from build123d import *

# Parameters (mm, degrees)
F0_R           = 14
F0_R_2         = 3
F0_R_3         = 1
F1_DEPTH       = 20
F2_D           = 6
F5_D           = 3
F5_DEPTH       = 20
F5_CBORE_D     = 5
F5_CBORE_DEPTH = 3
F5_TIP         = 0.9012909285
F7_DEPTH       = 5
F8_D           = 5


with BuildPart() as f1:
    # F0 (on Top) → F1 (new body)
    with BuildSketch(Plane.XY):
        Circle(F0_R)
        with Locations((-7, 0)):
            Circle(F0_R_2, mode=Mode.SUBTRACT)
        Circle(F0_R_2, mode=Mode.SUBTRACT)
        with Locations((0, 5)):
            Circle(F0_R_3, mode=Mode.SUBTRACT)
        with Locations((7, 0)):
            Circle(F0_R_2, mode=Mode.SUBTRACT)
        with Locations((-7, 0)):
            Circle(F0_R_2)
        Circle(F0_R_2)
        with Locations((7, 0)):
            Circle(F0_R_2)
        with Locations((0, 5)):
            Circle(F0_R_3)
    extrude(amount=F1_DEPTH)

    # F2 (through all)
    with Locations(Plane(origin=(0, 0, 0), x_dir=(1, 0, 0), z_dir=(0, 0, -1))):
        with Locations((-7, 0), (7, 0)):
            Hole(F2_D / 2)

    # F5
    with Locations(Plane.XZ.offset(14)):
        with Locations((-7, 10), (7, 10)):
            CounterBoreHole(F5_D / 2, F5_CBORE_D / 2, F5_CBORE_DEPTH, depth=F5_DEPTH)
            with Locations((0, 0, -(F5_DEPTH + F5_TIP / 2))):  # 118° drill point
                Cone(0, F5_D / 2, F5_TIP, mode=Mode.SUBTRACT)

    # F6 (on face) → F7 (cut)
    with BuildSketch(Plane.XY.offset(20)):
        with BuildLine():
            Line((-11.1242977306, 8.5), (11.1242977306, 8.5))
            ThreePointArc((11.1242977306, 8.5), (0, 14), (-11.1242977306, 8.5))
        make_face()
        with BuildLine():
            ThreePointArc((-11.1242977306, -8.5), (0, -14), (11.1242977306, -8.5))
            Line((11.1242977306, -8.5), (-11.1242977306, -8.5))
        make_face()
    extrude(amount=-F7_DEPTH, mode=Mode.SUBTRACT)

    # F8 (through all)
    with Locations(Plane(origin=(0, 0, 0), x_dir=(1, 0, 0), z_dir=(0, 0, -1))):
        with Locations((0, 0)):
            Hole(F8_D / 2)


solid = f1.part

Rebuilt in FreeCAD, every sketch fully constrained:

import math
import FreeCAD as App
import Part
import Sketcher

V = App.Vector
Q = App.Units.Quantity

doc = App.newDocument("Part")
body = doc.addObject("PartDesign::Body", "Body")

# Sketch on XY plane
sketch1 = doc.addObject("Sketcher::SketchObject", "Sketch")
body.addObject(sketch1)
sketch1.AttachmentSupport = (doc.XY_Plane, [""])
sketch1.MapMode = "FlatFace"
sketch1.addGeometry(Part.Circle(V(0, 0, 0), V(0, 0, 1), 14), False)
sketch1.addConstraint([
    Sketcher.Constraint("Coincident", 0, 3, -1, 1),
    Sketcher.Constraint("Diameter", 0, Q("28 mm")),
])
pad1 = doc.addObject("PartDesign::Pad", "Pad")
body.addObject(pad1)
pad1.Profile = sketch1
pad1.Length = 20

# Sketch on XY plane
sketch2 = doc.addObject("Sketcher::SketchObject", "Sketch001")
body.addObject(sketch2)
sketch2.AttachmentSupport = (doc.XY_Plane, [""])
sketch2.MapMode = "FlatFace"
sketch2.addGeometry([
    Part.Circle(V(-7, 0, 0), V(0, 0, 1), 3),
    Part.Circle(V(7, 0, 0), V(0, 0, 1), 3),
], False)
sketch2.addConstraint([
    Sketcher.Constraint("Equal", 0, 1),
    Sketcher.Constraint("Symmetric", 0, 3, 1, 3, -1, 1),
    Sketcher.Constraint("PointOnObject", 0, 3, -1),
    Sketcher.Constraint("Diameter", 0, Q("6 mm")),
    Sketcher.Constraint("DistanceX", 0, 3, -1, 1, Q("7 mm")),
])
doc.recompute()
hole = doc.addObject("PartDesign::Hole", "Hole")
body.addObject(hole)
hole.Profile = sketch2
hole.ThreadType = "None"
hole.Diameter = 6
hole.DepthType = "ThroughAll"
hole.Reversed = True

# Sketch on XZ plane
sketch3 = doc.addObject("Sketcher::SketchObject", "Sketch002")
body.addObject(sketch3)
sketch3.AttachmentSupport = (doc.XZ_Plane, [""])
sketch3.MapMode = "FlatFace"
sketch3.AttachmentOffset = App.Placement(V(0, 0, 14), App.Rotation())
sketch3.addGeometry([
    Part.Circle(V(-7, 10, 0), V(0, 0, 1), 1.5),
    Part.Circle(V(7, 10, 0), V(0, 0, 1), 1.5),
], False)
sketch3.addConstraint([
    Sketcher.Constraint("Equal", 0, 1),
    Sketcher.Constraint("Symmetric", 0, 3, 1, 3, -2),
    Sketcher.Constraint("Diameter", 0, Q("3 mm")),
    Sketcher.Constraint("DistanceX", 0, 3, -1, 1, Q("7 mm")),
    Sketcher.Constraint("DistanceY", -1, 1, 0, 3, Q("10 mm")),
])
doc.recompute()
hole2 = doc.addObject("PartDesign::Hole", "Hole001")
body.addObject(hole2)
hole2.Profile = sketch3
hole2.ThreadType = "None"
hole2.Diameter = 3
hole2.DepthType = "Dimension"
hole2.Depth = 20
hole2.DrillPoint = "Angled"
hole2.DrillPointAngle = 118
hole2.HoleCutType = "Counterbore"
hole2.HoleCutDiameter = 5
hole2.HoleCutDepth = 3

# Sketch on XY plane
sketch4 = doc.addObject("Sketcher::SketchObject", "Sketch003")
body.addObject(sketch4)
sketch4.AttachmentSupport = (doc.XY_Plane, [""])
sketch4.MapMode = "FlatFace"
sketch4.AttachmentOffset = App.Placement(V(0, 0, 20), App.Rotation())
sketch4.addGeometry([
    Part.LineSegment(V(-11, 8, 0), V(11, 8, 0)),
    Part.ArcOfCircle(Part.Circle(V(0, 0, 0), V(0, 0, 1), 14), math.radians(37), math.radians(143)),
    Part.ArcOfCircle(Part.Circle(V(0, 0, 0), V(0, 0, 1), 14), math.radians(-143), math.radians(-37)),
    Part.LineSegment(V(11, -8, 0), V(-11, -8, 0)),
], False)
sketch4.addConstraint([
    Sketcher.Constraint("Coincident", 0, 1, 1, 2),
    Sketcher.Constraint("Coincident", 1, 1, 0, 2),
    Sketcher.Constraint("Coincident", 2, 1, 3, 2),
    Sketcher.Constraint("Coincident", 3, 1, 2, 2),
    Sketcher.Constraint("Horizontal", 0),
    Sketcher.Constraint("Horizontal", 3),
    Sketcher.Constraint("Coincident", 1, 3, -1, 1),
    Sketcher.Constraint("Coincident", 2, 3, -1, 1),
    Sketcher.Constraint("Equal", 1, 2),
    Sketcher.Constraint("Vertical", 0, 1, 2, 1),
    Sketcher.Constraint("Radius", 1, Q("14 mm")),
    Sketcher.Constraint("DistanceY", 2, 1, 0, 1, Q("17 mm")),
])
pocket1 = doc.addObject("PartDesign::Pocket", "Pocket")
body.addObject(pocket1)
pocket1.Profile = sketch4
pocket1.Length = 5

# Sketch on XY plane
sketch5 = doc.addObject("Sketcher::SketchObject", "Sketch004")
body.addObject(sketch5)
sketch5.AttachmentSupport = (doc.XY_Plane, [""])
sketch5.MapMode = "FlatFace"
sketch5.addGeometry(Part.Circle(V(0, 0, 0), V(0, 0, 1), 2.5), False)
sketch5.addConstraint([
    Sketcher.Constraint("Coincident", 0, 3, -1, 1),
    Sketcher.Constraint("Diameter", 0, Q("5 mm")),
])
doc.recompute()
hole3 = doc.addObject("PartDesign::Hole", "Hole002")
body.addObject(hole3)
hole3.Profile = sketch5
hole3.ThreadType = "None"
hole3.Diameter = 5
hole3.DepthType = "ThroughAll"
hole3.Reversed = True

doc.recompute()
